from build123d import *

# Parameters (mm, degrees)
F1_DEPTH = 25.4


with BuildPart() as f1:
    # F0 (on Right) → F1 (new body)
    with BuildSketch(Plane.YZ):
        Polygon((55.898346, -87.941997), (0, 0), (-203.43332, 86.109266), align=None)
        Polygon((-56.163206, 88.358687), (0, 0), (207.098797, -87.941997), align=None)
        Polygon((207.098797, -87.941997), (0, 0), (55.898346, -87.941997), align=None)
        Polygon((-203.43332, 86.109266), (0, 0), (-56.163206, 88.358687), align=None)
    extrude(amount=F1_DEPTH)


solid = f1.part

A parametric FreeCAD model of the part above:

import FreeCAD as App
import Part
import Sketcher
from FreeCAD import Vector

doc = App.newDocument("Part")
params = doc.addObject("Spreadsheet::Sheet", "Params")
for row, (alias, value) in enumerate([
    ("pad1_length", "1 in"),
], start=1):
    params.set(f"A{row}", alias)
    params.set(f"B{row}", "=" + value)
    params.setAlias(f"B{row}", alias)

body = doc.addObject("PartDesign::Body", "Body")

sketch1 = body.newObject("Sketcher::SketchObject", "Sketch")
sketch1.AttachmentSupport = (doc.getObject("YZ_Plane"), [""])
sketch1.MapMode = "FlatFace"
sketch1.addGeometry([
    Part.LineSegment(Vector(-203.43332, 86.109266, 0), Vector(55.898346, -87.941997, 0)),
    Part.LineSegment(Vector(55.898346, -87.941997, 0), Vector(207.098797, -87.941997, 0)),
    Part.LineSegment(Vector(207.098797, -87.941997, 0), Vector(-56.163206, 88.358687, 0)),
    Part.LineSegment(Vector(-56.163206, 88.358687, 0), Vector(-203.43332, 86.109266, 0)),
], False)
sketch1.addConstraint([
    Sketcher.Constraint("Coincident", 0, 2, 1, 1),
    Sketcher.Constraint("Coincident", 1, 2, 2, 1),
    Sketcher.Constraint("Coincident", 2, 2, 3, 1),
    Sketcher.Constraint("Coincident", 3, 2, 0, 1),
    Sketcher.Constraint("Horizontal", 1),
    Sketcher.Constraint("DistanceX", 1, 1, 1, 2, 151.200451),
    Sketcher.Constraint("Distance", 0, 312.324759),
    Sketcher.Constraint("Distance", 3, 147.287292),
    Sketcher.Constraint("DistanceX", 3, 2, -1, 1, 203.43332),
    Sketcher.Constraint("DistanceY", 3, 2, 2, 2, 2.249421),
    Sketcher.Constraint("DistanceX", -1, 1, 0, 2, 55.898346),
    Sketcher.Constraint("DistanceY", 0, 2, -1, 1, 87.941997),
])
pad1 = body.newObject("PartDesign::Pad", "Pad")
pad1.Profile = sketch1
pad1.setExpression("Length", "Params.pad1_length")

doc.recompute()
